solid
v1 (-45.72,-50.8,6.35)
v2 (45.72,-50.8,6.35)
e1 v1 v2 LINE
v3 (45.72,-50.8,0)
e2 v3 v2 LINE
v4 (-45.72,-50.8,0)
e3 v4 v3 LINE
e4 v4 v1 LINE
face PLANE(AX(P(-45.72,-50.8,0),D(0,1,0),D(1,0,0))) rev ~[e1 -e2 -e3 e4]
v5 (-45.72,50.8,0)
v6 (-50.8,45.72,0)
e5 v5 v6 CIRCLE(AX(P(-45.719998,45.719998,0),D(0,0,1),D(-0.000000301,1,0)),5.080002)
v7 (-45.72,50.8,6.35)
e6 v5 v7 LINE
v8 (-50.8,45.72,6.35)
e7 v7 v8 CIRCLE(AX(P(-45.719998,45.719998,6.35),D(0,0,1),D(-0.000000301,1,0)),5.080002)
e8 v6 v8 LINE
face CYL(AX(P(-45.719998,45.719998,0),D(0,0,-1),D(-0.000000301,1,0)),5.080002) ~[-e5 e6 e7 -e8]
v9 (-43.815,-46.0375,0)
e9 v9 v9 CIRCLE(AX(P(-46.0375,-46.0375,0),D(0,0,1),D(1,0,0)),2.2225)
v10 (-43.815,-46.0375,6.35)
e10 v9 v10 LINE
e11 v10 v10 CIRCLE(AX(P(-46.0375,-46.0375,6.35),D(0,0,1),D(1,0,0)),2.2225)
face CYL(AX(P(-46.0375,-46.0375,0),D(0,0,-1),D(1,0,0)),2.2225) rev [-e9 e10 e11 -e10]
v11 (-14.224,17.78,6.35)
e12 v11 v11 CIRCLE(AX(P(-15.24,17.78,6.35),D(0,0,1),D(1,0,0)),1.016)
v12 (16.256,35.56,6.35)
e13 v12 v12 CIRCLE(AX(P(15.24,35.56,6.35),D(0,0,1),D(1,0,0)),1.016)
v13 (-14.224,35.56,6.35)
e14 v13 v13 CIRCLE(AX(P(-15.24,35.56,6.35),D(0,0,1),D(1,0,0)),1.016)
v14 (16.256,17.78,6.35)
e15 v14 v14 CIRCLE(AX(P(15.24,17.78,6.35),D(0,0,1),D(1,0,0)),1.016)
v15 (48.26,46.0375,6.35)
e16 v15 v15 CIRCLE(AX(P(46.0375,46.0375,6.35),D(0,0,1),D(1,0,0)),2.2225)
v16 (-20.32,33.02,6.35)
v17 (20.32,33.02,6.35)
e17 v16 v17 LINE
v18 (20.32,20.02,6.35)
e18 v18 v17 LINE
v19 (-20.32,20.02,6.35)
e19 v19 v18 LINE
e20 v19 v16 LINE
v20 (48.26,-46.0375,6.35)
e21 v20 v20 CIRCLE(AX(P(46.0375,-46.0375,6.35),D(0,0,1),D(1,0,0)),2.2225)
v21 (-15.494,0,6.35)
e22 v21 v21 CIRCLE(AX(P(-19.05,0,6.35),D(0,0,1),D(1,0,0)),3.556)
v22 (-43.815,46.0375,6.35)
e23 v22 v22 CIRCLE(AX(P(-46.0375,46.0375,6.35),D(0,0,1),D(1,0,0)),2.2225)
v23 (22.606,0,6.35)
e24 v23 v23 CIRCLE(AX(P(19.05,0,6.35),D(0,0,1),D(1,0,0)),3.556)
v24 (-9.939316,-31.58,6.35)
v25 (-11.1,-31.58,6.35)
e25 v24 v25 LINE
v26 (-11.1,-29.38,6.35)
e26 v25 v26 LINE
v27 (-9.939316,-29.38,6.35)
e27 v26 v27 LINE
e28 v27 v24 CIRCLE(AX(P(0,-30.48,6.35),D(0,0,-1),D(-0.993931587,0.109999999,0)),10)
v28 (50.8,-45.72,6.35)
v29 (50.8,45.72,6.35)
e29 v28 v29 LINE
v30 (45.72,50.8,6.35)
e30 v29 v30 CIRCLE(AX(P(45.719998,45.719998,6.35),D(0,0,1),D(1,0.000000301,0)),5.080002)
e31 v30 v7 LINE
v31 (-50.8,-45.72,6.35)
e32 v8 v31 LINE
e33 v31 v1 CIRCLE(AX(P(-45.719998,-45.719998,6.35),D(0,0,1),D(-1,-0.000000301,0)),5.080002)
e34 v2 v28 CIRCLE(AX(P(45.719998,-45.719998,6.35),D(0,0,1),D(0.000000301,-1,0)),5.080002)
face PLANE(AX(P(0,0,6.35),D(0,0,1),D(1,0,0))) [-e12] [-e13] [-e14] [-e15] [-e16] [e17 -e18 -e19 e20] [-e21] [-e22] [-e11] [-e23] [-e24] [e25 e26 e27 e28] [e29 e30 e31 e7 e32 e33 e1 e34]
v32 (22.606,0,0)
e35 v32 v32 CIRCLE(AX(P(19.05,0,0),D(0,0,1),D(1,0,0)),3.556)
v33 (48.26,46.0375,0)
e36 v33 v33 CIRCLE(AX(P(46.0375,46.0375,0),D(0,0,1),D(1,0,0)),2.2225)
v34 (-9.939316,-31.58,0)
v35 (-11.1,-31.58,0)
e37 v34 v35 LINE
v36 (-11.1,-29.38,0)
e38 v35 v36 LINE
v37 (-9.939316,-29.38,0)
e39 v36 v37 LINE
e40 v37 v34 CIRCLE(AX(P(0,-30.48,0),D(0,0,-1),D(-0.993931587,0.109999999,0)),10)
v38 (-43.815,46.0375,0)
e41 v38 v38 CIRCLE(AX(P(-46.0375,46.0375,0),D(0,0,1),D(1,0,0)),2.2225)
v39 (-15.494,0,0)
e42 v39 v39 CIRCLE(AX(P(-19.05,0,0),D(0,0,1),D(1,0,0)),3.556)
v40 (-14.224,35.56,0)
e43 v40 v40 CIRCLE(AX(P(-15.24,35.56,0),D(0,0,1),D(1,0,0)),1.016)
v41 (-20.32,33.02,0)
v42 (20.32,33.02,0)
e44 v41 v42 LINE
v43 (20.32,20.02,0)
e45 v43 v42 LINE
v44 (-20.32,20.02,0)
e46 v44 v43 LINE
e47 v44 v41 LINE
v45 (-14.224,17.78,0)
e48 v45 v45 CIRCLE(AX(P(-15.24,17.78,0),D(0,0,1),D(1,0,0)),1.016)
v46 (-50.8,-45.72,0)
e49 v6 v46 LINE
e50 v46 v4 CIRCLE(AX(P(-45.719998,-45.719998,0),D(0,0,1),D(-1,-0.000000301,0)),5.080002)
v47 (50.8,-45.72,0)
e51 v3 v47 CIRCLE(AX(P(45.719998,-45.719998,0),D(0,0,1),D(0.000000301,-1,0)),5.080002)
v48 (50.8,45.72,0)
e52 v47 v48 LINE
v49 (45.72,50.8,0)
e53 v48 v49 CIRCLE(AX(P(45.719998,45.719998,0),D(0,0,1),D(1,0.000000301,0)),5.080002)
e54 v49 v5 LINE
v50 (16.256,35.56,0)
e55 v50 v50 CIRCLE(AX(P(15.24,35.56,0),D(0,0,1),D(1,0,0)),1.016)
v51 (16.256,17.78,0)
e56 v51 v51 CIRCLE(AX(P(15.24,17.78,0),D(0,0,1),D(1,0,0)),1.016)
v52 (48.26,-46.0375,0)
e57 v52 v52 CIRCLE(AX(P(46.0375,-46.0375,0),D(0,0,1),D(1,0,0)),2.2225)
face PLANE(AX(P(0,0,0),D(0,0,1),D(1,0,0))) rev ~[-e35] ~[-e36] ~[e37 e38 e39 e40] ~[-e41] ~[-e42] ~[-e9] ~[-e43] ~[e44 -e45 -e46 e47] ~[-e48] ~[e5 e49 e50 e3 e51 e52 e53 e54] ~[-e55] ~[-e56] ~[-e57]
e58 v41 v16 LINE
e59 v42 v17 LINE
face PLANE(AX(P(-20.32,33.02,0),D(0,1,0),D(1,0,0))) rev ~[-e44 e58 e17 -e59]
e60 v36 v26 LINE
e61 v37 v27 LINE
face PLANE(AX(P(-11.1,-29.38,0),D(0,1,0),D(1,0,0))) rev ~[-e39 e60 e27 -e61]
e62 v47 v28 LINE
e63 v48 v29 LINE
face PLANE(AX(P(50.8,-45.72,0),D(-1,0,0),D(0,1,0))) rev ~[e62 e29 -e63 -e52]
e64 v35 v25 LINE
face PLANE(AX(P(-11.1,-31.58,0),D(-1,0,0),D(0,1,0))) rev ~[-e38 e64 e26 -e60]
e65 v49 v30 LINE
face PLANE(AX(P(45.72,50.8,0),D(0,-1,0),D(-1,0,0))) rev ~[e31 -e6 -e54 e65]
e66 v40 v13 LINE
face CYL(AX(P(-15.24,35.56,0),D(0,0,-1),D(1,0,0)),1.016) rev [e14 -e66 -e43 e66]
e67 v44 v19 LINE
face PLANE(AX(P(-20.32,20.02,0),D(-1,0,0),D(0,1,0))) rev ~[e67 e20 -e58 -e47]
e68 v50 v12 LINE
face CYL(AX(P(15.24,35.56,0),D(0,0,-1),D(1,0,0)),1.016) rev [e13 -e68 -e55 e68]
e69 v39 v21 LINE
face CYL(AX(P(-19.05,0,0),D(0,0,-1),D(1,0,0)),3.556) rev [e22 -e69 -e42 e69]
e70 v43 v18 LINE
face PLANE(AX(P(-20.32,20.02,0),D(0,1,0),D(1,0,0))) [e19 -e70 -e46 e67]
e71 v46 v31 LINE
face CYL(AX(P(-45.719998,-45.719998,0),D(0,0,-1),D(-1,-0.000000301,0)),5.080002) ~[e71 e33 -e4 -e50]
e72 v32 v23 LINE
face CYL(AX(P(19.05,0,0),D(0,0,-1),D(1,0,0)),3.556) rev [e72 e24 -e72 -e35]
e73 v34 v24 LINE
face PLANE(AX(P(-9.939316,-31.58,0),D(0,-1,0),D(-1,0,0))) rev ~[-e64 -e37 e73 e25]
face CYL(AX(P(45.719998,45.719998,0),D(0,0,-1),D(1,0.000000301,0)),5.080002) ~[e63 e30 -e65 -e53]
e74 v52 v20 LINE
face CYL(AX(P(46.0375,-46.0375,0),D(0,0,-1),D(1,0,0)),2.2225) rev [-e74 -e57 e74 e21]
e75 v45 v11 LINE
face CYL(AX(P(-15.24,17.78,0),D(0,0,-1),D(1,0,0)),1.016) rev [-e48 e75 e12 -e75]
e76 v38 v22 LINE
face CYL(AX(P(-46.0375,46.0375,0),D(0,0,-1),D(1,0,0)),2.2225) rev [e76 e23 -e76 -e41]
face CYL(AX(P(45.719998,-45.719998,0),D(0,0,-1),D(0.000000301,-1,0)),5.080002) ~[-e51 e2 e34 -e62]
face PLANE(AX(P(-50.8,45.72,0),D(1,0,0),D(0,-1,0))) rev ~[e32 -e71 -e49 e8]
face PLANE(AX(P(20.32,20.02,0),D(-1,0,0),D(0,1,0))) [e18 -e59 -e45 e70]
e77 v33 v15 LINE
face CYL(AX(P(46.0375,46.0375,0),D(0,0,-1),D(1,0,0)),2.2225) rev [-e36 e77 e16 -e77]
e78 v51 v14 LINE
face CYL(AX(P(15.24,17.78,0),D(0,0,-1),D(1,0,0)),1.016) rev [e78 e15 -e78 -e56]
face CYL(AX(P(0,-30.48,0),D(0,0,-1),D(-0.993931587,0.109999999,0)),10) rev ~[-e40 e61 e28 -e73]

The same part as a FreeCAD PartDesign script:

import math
import FreeCAD as App
import Part
import Sketcher
from FreeCAD import Vector
Q = App.Units.Quantity

doc = App.newDocument("Part")
body = doc.addObject("PartDesign::Body", "Body")

# Sketch on XY plane
sketch1 = body.newObject("Sketcher::SketchObject", "Sketch")
sketch1.AttachmentSupport = (doc.getObject("XY_Plane"), [""])
sketch1.MapMode = "FlatFace"
sketch1.addGeometry(Part.LineSegment(Vector(45.7, 50.8, 0), Vector(-45.7, 50.8, 0)), False)
sketch1.addGeometry(Part.ArcOfCircle(Part.Circle(Vector(-45.7, 45.7, 0), Vector(0, 0, 1), 5.1), math.radians(90), math.radians(180)), False)
sketch1.addGeometry(Part.LineSegment(Vector(-50.8, 45.7, 0), Vector(-50.8, -45.7, 0)), False)
sketch1.addGeometry(Part.ArcOfCircle(Part.Circle(Vector(-45.7, -45.7, 0), Vector(0, 0, 1), 5.1), math.radians(-180), math.radians(-90)), False)
sketch1.addGeometry(Part.LineSegment(Vector(-45.7, -50.8, 0), Vector(45.7, -50.8, 0)), False)
sketch1.addGeometry(Part.ArcOfCircle(Part.Circle(Vector(45.7, -45.7, 0), Vector(0, 0, 1), 5.1), math.radians(-90), math.radians(0)), False)
sketch1.addGeometry(Part.LineSegment(Vector(50.8, -45.7, 0), Vector(50.8, 45.7, 0)), False)
sketch1.addGeometry(Part.ArcOfCircle(Part.Circle(Vector(45.7, 45.7, 0), Vector(0, 0, 1), 5.1), math.radians(0), math.radians(90)), False)
sketch1.addGeometry(Part.Circle(Vector(-46, -46, 0), Vector(0, 0, 1), 2.2), False)
sketch1.addGeometry(Part.LineSegment(Vector(-11.1, -29.4, 0), Vector(-9.9, -29.4, 0)), False)
sketch1.addGeometry(Part.ArcOfCircle(Part.Circle(Vector(0, -30.5, 0), Vector(0, 0, 1), 10), math.radians(-174), math.radians(174)), False)
sketch1.addGeometry(Part.LineSegment(Vector(-9.9, -31.6, 0), Vector(-11.1, -31.6, 0)), False)
sketch1.addGeometry(Part.LineSegment(Vector(-11.1, -31.6, 0), Vector(-11.1, -29.4, 0)), False)
sketch1.addGeometry(Part.Circle(Vector(46, -46, 0), Vector(0, 0, 1), 2.2), False)
sketch1.addGeometry(Part.Circle(Vector(-19.1, 0, 0), Vector(0, 0, 1), 3.6), False)
sketch1.addGeometry(Part.Circle(Vector(-15.2, 17.8, 0), Vector(0, 0, 1), 1), False)
sketch1.addGeometry(Part.Circle(Vector(-46, 46, 0), Vector(0, 0, 1), 2.2), False)
sketch1.addGeometry(Part.Circle(Vector(-15.2, 35.6, 0), Vector(0, 0, 1), 1), False)
sketch1.addGeometry(Part.Circle(Vector(19.1, 0, 0), Vector(0, 0, 1), 3.6), False)
sketch1.addGeometry(Part.Circle(Vector(15.2, 17.8, 0), Vector(0, 0, 1), 1), False)
sketch1.addGeometry(Part.LineSegment(Vector(20.3, 20, 0), Vector(-20.3, 20, 0)), False)
sketch1.addGeometry(Part.LineSegment(Vector(-20.3, 20, 0), Vector(-20.3, 33, 0)), False)
sketch1.addGeometry(Part.LineSegment(Vector(-20.3, 33, 0), Vector(20.3, 33, 0)), False)
sketch1.addGeometry(Part.LineSegment(Vector(20.3, 33, 0), Vector(20.3, 20, 0)), False)
sketch1.addGeometry(Part.Circle(Vector(15.2, 35.6, 0), Vector(0, 0, 1), 1), False)
sketch1.addGeometry(Part.Circle(Vector(46, 46, 0), Vector(0, 0, 1), 2.2), False)
sketch1.addConstraint(Sketcher.Constraint("Tangent", 0, 2, 1, 1))
sketch1.addConstraint(Sketcher.Constraint("Tangent", 1, 2, 2, 1))
sketch1.addConstraint(Sketcher.Constraint("Tangent", 2, 2, 3, 1))
sketch1.addConstraint(Sketcher.Constraint("Tangent", 3, 2, 4, 1))
sketch1.addConstraint(Sketcher.Constraint("Tangent", 4, 2, 5, 1))
sketch1.addConstraint(Sketcher.Constraint("Tangent", 5, 2, 6, 1))
sketch1.addConstraint(Sketcher.Constraint("Tangent", 6, 2, 7, 1))
sketch1.addConstraint(Sketcher.Constraint("Tangent", 7, 2, 0, 1))
sketch1.addConstraint(Sketcher.Constraint("Coincident", 9, 2, 10, 2))
sketch1.addConstraint(Sketcher.Constraint("Coincident", 10, 1, 11, 1))
sketch1.addConstraint(Sketcher.Constraint("Coincident", 11, 2, 12, 1))
sketch1.addConstraint(Sketcher.Constraint("Coincident", 12, 2, 9, 1))
sketch1.addConstraint(Sketcher.Constraint("Coincident", 20, 2, 21, 1))
sketch1.addConstraint(Sketcher.Constraint("Coincident", 21, 2, 22, 1))
sketch1.addConstraint(Sketcher.Constraint("Coincident", 22, 2, 23, 1))
sketch1.addConstraint(Sketcher.Constraint("Coincident", 23, 2, 20, 1))
sketch1.addConstraint(Sketcher.Constraint("Horizontal", 0))
sketch1.addConstraint(Sketcher.Constraint("Vertical", 2))
sketch1.addConstraint(Sketcher.Constraint("Horizontal", 4))
sketch1.addConstraint(Sketcher.Constraint("Vertical", 6))
sketch1.addConstraint(Sketcher.Constraint("Horizontal", 9))
sketch1.addConstraint(Sketcher.Constraint("Horizontal", 11))
sketch1.addConstraint(Sketcher.Constraint("Vertical", 12))
sketch1.addConstraint(Sketcher.Constraint("Horizontal", 20))
sketch1.addConstraint(Sketcher.Constraint("Vertical", 21))
sketch1.addConstraint(Sketcher.Constraint("Horizontal", 22))
sketch1.addConstraint(Sketcher.Constraint("Vertical", 23))
sketch1.addConstraint(Sketcher.Constraint("Equal", 1, 3))
sketch1.addConstraint(Sketcher.Constraint("Equal", 3, 5))
sketch1.addConstraint(Sketcher.Constraint("Equal", 5, 7))
sketch1.addConstraint(Sketcher.Constraint("Equal", 8, 13))
sketch1.addConstraint(Sketcher.Constraint("Equal", 13, 16))
sketch1.addConstraint(Sketcher.Constraint("Equal", 15, 17))
sketch1.addConstraint(Sketcher.Constraint("Equal", 14, 18))
sketch1.addConstraint(Sketcher.Constraint("Equal", 17, 19))
sketch1.addConstraint(Sketcher.Constraint("Equal", 19, 24))
sketch1.addConstraint(Sketcher.Constraint("Equal", 16, 25))
sketch1.addConstraint(Sketcher.Constraint("Symmetric", 1, 3, 5, 3, -1, 1))
sketch1.addConstraint(Sketcher.Constraint("Symmetric", 13, 3, 16, 3, -1, 1))
sketch1.addConstraint(Sketcher.Constraint("Symmetric", 14, 3, 18, 3, -1, 1))
sketch1.addConstraint(Sketcher.Constraint("Symmetric", 8, 3, 25, 3, -1, 1))
sketch1.addConstraint(Sketcher.Constraint("Symmetric", 8, 3, 13, 3, -2))
sketch1.addConstraint(Sketcher.Constraint("Symmetric", 15, 3, 19, 3, -2))
sketch1.addConstraint(Sketcher.Constraint("Symmetric", 17, 3, 24, 3, -2))
sketch1.addConstraint(Sketcher.Constraint("PointOnObject", 10, 3, -2))
sketch1.addConstraint(Sketcher.Constraint("PointOnObject", 14, 3, -1))
sketch1.addConstraint(Sketcher.Constraint("Vertical", 15, 3, 17, 3))
sketch1.addConstraint(Sketcher.Constraint("Vertical", 9, 2, 10, 1))
sketch1.addConstraint(Sketcher.Constraint("Equal", 4, 2))
sketch1.addConstraint(Sketcher.Constraint("Radius", 1, Q("0.2000001 in")))
sketch1.addConstraint(Sketcher.Constraint("Diameter", 14, Q("0.28 in")))
sketch1.addConstraint(Sketcher.Constraint("Diameter", 15, Q("0.08 in")))
sketch1.addConstraint(Sketcher.Constraint("Diameter", 8, Q("0.175 in")))
sketch1.addConstraint(Sketcher.Constraint("DistanceX", 0, 2, 0, 1, Q("3.6 in")))
sketch1.addConstraint(Sketcher.Constraint("DistanceX", 20, 2, 20, 1, Q("1.6 in")))
sketch1.addConstraint(Sketcher.Constraint("DistanceY", 10, 3, 1, 3, Q("2.9999999 in")))
sketch1.addConstraint(Sketcher.Constraint("DistanceX", 1, 3, 20, 2, Q("0.9999999 in")))
sketch1.addConstraint(Sketcher.Constraint("DistanceX", 15, 3, -1, 1, Q("0.6 in")))
sketch1.addConstraint(Sketcher.Constraint("DistanceY", -1, 1, 15, 3, Q("0.7 in")))
sketch1.addConstraint(Sketcher.Constraint("DistanceY", -1, 1, 17, 3, Q("1.4 in")))
sketch1.addConstraint(Sketcher.Constraint("DistanceY", -1, 1, 21, 2, Q("1.3 in")))
sketch1.addConstraint(Sketcher.Constraint("DistanceX", 14, 3, 18, 3, Q("1.5 in")))
sketch1.addConstraint(Sketcher.Constraint("Radius", 10, 10.0))
sketch1.addConstraint(Sketcher.Constraint("DistanceX", 8, 3, -1, 1, Q("1.8125 in")))
sketch1.addConstraint(Sketcher.Constraint("DistanceY", 8, 3, -1, 1, Q("1.8125 in")))
sketch1.addConstraint(Sketcher.Constraint("DistanceY", 12, 1, 12, 2, 2.2))
sketch1.addConstraint(Sketcher.Constraint("DistanceY", 21, 1, 21, 2, 13.0))
sketch1.addConstraint(Sketcher.Constraint("DistanceX", 11, 2, -1, 1, 11.1))
pad1 = body.newObject("PartDesign::Pad", "Pad")
pad1.Profile = sketch1
pad1.Length = Q("0.25 in")

doc.recompute()
